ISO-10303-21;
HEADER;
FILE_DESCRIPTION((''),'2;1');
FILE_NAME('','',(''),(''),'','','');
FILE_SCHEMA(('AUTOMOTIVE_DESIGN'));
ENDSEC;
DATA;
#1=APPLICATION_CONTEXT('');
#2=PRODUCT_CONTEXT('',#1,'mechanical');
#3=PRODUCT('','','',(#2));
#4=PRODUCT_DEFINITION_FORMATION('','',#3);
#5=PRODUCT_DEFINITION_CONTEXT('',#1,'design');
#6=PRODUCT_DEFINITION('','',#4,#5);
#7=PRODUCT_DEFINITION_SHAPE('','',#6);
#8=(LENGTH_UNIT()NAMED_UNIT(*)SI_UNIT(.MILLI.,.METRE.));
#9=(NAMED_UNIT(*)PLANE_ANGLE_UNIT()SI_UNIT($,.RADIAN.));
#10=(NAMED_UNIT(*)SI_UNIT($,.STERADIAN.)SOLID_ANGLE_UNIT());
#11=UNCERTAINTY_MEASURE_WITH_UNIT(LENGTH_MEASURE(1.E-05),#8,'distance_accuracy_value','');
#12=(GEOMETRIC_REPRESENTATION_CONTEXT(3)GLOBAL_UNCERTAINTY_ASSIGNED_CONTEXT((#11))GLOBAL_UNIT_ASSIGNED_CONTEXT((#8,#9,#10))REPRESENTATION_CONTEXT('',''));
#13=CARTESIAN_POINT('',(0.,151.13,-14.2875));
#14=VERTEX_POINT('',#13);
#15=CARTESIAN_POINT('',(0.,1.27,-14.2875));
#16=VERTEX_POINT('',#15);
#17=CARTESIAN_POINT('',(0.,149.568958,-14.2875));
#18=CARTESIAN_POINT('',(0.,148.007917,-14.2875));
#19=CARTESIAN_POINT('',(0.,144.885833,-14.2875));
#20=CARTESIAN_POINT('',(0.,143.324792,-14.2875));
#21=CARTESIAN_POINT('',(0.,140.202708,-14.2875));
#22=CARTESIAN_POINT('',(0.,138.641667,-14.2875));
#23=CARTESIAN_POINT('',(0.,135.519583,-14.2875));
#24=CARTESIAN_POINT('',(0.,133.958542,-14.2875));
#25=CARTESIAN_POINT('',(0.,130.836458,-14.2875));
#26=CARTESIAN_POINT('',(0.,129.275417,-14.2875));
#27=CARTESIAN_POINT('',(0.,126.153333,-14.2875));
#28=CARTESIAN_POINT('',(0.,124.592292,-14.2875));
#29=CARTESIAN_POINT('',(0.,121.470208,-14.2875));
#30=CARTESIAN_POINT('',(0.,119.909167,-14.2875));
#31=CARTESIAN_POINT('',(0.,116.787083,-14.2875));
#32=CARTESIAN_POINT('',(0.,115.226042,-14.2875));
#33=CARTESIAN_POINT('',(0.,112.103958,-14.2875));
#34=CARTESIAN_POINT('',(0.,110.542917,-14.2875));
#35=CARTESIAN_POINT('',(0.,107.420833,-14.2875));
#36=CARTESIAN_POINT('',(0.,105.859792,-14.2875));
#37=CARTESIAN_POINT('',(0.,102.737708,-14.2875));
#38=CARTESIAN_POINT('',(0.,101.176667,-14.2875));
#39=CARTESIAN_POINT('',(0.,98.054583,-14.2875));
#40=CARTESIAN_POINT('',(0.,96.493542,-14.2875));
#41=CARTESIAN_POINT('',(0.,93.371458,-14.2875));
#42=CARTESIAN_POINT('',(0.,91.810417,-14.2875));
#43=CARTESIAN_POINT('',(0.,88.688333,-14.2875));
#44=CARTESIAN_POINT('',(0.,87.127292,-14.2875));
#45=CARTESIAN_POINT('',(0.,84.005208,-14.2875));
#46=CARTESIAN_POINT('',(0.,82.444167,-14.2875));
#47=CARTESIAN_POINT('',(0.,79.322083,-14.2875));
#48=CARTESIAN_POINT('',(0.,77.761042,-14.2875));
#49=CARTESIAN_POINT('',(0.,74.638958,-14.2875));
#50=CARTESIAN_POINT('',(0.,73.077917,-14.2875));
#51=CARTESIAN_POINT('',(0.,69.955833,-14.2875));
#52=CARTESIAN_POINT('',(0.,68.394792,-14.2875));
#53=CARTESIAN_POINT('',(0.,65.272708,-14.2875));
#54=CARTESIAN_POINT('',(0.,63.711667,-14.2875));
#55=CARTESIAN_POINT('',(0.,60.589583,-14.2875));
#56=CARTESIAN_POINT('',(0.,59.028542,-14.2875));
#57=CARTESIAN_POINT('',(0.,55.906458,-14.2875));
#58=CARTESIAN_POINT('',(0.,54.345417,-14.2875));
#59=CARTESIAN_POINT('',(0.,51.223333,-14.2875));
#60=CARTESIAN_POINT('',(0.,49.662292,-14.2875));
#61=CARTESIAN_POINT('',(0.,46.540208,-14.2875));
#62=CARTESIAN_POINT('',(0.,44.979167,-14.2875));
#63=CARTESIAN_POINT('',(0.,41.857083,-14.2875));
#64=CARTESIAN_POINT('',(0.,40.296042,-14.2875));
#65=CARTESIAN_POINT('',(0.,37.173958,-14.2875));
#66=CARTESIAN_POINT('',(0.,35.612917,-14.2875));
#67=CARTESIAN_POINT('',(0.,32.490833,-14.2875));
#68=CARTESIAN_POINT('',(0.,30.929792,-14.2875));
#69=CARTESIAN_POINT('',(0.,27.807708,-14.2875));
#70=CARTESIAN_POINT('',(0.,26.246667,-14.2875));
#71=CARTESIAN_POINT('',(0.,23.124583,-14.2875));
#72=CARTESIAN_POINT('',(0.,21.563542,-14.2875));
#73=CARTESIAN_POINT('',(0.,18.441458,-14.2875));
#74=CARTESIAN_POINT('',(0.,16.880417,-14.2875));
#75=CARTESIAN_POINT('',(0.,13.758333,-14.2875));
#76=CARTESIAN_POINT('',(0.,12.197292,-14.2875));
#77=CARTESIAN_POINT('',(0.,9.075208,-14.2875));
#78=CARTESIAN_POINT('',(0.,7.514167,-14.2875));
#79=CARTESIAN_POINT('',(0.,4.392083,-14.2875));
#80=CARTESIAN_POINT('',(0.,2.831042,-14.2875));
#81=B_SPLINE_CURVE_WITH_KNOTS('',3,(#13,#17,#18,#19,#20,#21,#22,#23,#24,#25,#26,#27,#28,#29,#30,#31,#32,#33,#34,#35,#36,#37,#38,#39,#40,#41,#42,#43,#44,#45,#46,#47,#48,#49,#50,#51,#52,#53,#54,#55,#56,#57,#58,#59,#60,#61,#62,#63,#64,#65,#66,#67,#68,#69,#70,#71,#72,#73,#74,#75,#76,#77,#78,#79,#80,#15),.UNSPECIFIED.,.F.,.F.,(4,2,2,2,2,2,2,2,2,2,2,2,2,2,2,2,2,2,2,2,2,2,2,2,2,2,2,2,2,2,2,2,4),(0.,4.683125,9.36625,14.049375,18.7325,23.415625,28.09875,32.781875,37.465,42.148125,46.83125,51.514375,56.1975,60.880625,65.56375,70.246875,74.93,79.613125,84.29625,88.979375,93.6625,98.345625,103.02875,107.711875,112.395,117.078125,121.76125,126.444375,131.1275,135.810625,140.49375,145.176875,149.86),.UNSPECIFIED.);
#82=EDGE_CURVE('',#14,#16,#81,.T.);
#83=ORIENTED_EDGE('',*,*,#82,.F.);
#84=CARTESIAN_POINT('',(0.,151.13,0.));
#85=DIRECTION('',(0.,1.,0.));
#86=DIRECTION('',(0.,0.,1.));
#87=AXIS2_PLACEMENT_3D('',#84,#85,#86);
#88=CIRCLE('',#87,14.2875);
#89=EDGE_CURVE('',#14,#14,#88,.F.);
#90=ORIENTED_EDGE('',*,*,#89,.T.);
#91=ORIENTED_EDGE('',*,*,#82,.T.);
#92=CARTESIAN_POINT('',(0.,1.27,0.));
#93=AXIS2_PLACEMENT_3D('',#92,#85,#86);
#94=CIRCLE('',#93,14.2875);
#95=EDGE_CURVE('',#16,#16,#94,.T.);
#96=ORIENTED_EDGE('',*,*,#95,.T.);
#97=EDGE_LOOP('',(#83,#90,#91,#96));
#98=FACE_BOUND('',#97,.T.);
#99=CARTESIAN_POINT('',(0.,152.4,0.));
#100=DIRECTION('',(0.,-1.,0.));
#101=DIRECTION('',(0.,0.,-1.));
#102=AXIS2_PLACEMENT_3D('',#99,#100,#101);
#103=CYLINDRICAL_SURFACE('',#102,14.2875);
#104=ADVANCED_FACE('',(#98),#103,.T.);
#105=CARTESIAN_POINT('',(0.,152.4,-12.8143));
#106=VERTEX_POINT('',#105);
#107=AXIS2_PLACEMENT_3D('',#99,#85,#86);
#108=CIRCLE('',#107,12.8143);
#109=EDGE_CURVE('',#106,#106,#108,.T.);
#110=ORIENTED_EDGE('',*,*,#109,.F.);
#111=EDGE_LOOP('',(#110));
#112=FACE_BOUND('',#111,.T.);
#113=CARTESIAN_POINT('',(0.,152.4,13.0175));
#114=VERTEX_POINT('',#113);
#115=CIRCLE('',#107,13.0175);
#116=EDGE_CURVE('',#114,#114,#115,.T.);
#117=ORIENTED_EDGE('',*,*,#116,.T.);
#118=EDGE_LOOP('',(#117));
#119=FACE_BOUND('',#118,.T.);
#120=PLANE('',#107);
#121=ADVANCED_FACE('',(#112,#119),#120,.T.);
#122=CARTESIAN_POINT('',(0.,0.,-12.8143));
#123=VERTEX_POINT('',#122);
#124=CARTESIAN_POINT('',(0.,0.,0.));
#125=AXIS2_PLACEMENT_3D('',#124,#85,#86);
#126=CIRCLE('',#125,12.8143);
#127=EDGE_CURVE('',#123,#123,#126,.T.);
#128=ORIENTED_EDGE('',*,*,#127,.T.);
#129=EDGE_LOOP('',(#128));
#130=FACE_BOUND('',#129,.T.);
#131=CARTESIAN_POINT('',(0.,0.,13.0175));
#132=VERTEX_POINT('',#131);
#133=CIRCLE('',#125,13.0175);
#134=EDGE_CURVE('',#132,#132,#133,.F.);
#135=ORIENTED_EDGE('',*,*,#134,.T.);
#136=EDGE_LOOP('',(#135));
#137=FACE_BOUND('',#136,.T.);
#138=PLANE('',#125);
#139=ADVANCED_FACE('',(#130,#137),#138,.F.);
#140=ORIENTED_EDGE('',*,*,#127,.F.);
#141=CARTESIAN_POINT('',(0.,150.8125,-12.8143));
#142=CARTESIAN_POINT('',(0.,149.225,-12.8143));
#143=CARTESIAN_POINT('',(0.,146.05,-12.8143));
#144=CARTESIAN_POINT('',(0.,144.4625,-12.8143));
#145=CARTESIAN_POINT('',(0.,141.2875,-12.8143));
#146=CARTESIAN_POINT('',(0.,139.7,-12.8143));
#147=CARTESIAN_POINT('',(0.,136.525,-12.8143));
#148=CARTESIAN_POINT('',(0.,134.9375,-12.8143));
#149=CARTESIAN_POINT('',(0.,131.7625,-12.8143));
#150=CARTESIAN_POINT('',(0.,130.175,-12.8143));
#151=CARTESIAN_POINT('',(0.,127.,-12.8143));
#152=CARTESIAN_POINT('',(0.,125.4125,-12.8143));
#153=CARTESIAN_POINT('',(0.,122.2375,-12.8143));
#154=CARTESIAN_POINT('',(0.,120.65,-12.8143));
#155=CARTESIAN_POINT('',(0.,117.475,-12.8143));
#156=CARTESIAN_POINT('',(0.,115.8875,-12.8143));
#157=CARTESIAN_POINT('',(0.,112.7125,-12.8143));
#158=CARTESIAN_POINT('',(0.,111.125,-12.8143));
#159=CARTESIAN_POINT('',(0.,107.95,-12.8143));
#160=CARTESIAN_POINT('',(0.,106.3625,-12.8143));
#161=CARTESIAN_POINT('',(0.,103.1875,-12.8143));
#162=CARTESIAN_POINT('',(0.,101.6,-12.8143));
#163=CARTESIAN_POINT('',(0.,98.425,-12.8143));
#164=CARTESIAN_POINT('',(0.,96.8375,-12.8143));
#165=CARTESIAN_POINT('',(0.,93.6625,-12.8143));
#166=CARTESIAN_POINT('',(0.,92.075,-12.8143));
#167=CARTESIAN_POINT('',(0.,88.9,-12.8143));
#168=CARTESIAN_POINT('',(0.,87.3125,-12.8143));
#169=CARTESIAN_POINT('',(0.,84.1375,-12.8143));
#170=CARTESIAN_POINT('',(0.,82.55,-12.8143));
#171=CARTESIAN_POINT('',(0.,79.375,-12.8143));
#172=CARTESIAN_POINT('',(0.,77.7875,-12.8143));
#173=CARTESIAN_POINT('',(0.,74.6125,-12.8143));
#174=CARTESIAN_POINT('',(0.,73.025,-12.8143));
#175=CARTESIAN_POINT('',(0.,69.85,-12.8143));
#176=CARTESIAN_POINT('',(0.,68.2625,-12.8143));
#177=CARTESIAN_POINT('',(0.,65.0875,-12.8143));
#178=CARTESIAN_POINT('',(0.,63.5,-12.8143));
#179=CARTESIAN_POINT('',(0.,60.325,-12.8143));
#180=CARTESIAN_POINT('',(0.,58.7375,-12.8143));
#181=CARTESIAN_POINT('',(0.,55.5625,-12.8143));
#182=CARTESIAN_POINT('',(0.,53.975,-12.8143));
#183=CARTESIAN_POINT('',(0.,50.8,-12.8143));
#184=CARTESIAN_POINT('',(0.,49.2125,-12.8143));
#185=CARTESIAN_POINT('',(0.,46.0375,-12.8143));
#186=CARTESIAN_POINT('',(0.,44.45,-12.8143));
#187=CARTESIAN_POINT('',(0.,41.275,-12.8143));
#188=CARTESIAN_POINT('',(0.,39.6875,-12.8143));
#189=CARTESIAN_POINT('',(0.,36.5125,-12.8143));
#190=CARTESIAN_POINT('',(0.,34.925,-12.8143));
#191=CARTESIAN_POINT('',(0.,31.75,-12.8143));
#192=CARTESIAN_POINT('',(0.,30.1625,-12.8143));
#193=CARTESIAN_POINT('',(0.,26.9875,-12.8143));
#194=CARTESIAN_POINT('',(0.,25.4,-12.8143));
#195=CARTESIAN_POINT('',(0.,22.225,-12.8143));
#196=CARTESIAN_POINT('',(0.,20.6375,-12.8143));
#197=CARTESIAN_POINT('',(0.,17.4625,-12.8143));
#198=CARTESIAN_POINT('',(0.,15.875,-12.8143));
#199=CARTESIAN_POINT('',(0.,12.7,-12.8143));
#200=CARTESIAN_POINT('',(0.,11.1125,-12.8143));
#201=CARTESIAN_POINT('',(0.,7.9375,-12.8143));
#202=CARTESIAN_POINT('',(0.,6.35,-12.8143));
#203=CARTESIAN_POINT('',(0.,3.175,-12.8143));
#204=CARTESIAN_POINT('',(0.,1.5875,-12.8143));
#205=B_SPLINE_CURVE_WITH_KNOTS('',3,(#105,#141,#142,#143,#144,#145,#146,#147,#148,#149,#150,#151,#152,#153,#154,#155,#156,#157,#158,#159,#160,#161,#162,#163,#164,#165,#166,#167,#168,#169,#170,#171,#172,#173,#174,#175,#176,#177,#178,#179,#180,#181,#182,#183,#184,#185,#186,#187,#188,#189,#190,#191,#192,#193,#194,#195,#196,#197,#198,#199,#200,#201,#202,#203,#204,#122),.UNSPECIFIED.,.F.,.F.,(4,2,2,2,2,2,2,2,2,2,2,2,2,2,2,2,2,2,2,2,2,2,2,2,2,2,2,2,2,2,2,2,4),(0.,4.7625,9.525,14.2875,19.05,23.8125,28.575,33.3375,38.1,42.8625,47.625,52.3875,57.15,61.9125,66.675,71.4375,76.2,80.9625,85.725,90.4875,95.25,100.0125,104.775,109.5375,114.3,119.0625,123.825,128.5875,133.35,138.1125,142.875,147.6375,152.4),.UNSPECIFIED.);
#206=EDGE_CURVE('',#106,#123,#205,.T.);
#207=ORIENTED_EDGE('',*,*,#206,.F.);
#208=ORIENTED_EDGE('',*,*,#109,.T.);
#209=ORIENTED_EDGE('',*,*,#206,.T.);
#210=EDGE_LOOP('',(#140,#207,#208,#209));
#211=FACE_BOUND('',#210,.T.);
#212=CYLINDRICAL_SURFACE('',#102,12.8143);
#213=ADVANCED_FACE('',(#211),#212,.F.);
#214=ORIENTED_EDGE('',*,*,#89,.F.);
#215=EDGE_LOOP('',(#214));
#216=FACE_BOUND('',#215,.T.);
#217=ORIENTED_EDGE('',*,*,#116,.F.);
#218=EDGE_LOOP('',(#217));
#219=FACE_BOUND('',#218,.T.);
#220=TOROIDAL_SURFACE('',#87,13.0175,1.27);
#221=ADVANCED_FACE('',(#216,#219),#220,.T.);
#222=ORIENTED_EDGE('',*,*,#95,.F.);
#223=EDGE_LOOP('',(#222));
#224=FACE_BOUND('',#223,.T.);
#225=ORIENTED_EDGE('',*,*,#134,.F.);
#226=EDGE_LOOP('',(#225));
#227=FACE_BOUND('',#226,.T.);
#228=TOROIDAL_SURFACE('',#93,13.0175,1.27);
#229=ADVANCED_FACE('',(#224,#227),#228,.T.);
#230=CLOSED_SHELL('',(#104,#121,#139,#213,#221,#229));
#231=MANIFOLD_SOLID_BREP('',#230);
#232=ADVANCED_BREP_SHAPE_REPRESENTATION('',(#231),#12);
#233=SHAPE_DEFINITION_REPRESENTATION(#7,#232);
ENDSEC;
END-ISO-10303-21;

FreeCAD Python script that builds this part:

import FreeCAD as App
import Part
import Sketcher
from FreeCAD import Vector
Q = App.Units.Quantity


def edges_at(feature, points):
    """Names of the edges that pass closest to the given points."""
    edges = feature.Shape.Edges
    near = lambda p: min(range(len(edges)), key=lambda i: edges[i].distToShape(Part.Vertex(*p))[0])
    return sorted({f"Edge{near(p) + 1}" for p in points})

doc = App.newDocument("Part")
body = doc.addObject("PartDesign::Body", "Body")

# Sketch on XZ plane
sketch1 = body.newObject("Sketcher::SketchObject", "Sketch")
sketch1.AttachmentSupport = (doc.getObject("XZ_Plane"), [""])
sketch1.MapMode = "FlatFace"
sketch1.addGeometry([
    Part.Circle(Vector(0, 0, 0), Vector(0, 0, 1), 14),
    Part.Circle(Vector(0, 0, 0), Vector(0, 0, 1), 13),
], False)
sketch1.addConstraint([
    Sketcher.Constraint("Coincident", 0, 3, -1, 1),
    Sketcher.Constraint("Coincident", 1, 3, -1, 1),
    Sketcher.Constraint("Diameter", 0, Q("1.125 in")),
    Sketcher.Constraint("Diameter", 1, Q("1.009 in")),
])
pad1 = body.newObject("PartDesign::Pad", "Pad")
pad1.Profile = sketch1
pad1.Length = Q("6 in")
pad1.Reversed = True
doc.recompute()

fillet = body.newObject("PartDesign::Fillet", "Fillet")
fillet.Base = (pad1, edges_at(pad1, [(0, 0, 14.287), (0, 152.4, 14.287)]))
fillet.Radius = Q("0.05 in")

doc.recompute()
